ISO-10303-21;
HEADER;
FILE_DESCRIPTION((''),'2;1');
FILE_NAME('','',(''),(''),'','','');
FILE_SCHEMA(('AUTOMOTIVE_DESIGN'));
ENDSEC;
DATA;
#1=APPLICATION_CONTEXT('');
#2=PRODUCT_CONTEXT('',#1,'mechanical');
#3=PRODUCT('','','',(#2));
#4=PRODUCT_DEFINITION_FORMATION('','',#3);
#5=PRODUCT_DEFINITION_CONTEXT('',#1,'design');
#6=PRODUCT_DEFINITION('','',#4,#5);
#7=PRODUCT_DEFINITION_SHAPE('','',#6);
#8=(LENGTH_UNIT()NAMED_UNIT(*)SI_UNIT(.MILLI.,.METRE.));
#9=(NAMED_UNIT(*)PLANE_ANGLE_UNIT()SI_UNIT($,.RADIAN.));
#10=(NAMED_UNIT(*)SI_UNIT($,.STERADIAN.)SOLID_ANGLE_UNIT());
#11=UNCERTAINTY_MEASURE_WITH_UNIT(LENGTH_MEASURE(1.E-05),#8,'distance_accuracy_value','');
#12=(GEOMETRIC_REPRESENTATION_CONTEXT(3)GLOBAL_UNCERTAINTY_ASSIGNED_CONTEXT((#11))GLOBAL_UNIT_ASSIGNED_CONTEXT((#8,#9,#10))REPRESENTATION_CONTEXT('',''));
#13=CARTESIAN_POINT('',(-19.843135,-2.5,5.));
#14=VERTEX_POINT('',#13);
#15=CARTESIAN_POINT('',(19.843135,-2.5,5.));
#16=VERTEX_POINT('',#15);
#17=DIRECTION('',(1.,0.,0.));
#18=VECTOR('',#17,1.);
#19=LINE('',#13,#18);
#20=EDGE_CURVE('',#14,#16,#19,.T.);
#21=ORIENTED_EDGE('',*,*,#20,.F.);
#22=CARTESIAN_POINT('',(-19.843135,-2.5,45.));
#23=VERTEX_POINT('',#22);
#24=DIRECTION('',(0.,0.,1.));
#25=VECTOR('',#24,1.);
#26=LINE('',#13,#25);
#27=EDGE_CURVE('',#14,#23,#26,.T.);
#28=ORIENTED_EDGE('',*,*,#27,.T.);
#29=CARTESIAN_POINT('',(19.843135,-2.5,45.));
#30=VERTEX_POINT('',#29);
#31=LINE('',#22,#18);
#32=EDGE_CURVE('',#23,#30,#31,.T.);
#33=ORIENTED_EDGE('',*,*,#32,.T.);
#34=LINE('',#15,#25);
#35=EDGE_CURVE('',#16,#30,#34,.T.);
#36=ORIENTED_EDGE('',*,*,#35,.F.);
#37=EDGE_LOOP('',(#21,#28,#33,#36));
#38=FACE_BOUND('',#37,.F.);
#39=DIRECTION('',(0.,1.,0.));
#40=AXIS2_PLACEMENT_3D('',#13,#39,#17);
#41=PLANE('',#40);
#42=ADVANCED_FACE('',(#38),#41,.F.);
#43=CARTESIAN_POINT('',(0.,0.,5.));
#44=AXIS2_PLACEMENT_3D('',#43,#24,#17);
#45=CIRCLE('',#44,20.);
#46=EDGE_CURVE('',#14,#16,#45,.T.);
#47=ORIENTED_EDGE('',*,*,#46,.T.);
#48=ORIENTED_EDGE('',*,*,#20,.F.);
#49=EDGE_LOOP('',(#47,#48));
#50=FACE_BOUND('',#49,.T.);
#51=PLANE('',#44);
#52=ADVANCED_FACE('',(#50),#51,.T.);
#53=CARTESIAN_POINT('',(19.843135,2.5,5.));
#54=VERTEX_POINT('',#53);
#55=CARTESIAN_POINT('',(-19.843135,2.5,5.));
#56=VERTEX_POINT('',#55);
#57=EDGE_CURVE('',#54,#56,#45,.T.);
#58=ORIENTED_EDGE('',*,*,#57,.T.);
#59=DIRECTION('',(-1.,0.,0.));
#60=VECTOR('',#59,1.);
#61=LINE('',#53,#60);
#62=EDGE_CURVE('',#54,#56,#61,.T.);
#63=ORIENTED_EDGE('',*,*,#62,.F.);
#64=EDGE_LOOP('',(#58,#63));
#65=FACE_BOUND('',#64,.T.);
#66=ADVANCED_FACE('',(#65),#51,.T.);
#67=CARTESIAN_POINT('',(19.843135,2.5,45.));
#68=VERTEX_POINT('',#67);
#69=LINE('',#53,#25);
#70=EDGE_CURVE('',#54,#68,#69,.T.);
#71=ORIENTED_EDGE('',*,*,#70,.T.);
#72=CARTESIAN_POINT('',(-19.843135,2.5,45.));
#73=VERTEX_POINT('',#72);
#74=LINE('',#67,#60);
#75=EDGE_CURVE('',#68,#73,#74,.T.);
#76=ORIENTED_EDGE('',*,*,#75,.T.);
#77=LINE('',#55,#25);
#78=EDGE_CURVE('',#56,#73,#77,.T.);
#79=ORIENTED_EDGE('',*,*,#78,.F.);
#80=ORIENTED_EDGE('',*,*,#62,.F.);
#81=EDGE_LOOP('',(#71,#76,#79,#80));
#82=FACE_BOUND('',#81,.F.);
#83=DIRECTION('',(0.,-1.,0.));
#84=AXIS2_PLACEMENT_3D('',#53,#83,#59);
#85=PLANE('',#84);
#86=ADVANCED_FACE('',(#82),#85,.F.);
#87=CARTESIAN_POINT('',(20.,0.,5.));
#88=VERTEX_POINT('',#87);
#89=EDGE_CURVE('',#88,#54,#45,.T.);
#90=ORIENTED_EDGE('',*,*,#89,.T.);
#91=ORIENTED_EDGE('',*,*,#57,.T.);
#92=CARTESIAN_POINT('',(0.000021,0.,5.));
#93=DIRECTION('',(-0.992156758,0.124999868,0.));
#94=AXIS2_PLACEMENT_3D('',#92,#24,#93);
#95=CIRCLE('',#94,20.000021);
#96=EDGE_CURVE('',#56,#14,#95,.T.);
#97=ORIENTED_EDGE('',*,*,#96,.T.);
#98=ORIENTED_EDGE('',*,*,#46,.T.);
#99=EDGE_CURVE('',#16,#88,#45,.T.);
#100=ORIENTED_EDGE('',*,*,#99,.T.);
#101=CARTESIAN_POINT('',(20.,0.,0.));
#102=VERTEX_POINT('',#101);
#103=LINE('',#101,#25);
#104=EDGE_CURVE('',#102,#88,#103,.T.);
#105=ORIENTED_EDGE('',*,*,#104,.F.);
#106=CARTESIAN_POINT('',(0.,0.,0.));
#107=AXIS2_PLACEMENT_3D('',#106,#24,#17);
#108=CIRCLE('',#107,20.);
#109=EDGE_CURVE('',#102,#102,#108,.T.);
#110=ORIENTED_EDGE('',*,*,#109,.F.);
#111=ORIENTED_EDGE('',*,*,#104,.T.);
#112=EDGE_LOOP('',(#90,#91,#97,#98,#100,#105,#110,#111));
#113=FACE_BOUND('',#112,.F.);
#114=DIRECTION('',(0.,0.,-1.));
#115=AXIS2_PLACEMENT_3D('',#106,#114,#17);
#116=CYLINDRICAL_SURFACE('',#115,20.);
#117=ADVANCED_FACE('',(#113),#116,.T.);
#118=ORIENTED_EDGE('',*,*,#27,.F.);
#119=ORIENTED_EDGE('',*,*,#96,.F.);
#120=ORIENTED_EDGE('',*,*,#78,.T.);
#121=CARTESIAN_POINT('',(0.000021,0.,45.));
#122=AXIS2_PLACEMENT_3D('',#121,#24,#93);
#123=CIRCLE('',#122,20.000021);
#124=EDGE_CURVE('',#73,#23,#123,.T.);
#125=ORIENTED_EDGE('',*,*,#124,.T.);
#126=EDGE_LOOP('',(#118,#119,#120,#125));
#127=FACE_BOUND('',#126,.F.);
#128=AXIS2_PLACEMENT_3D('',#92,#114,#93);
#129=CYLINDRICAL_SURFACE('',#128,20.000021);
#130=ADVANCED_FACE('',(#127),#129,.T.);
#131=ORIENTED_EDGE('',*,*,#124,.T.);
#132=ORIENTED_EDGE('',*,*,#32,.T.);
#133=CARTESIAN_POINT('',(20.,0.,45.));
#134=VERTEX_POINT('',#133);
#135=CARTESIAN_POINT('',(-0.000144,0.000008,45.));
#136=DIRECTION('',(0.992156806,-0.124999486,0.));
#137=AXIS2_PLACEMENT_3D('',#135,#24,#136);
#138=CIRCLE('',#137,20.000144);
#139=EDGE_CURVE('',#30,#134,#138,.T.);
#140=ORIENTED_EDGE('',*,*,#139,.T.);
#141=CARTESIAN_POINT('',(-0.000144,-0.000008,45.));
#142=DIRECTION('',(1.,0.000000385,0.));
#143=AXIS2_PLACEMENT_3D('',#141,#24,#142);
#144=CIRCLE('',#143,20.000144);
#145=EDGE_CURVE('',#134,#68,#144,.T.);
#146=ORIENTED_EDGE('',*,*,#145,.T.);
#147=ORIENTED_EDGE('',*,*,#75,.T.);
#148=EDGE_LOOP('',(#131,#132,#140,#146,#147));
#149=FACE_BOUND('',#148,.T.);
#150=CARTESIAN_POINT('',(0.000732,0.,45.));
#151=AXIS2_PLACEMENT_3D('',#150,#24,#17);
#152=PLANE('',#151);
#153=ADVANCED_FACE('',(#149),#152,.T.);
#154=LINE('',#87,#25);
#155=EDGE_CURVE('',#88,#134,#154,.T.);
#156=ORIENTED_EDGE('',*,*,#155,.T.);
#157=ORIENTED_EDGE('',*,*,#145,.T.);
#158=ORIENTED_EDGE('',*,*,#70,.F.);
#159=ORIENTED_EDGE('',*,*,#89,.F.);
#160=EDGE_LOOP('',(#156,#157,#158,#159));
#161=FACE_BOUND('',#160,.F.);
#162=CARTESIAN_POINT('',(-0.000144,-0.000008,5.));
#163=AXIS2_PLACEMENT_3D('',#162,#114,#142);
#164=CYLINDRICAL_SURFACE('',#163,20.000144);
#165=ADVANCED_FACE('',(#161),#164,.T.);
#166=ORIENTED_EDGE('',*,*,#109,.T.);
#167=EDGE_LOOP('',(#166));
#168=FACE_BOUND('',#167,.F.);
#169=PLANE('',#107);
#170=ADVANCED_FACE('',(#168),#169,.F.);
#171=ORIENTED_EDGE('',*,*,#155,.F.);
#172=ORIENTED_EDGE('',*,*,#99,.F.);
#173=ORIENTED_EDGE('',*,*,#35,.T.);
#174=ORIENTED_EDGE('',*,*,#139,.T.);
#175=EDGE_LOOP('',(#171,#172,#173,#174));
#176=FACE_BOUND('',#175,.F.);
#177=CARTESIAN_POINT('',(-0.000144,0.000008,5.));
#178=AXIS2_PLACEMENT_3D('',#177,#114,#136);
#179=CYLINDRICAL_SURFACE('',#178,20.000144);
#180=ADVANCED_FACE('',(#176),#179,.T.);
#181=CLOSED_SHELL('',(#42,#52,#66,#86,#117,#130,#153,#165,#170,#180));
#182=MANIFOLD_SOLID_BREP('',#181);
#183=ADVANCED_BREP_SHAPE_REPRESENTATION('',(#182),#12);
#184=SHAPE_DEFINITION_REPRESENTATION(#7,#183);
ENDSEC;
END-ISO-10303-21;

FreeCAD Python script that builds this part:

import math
import FreeCAD as App
import Part
import Sketcher

doc = App.newDocument("Part")
params = doc.addObject("Spreadsheet::Sheet", "Params")
for row, (alias, value) in enumerate([
    ("sketch1_diameter", "40 mm"),
    ("pad1_length", "5 mm"),
    ("pad2_length", "40 mm"),
], start=1):
    params.set(f"A{row}", alias)
    params.set(f"B{row}", "=" + value)
    params.setAlias(f"B{row}", alias)

body = doc.addObject("PartDesign::Body", "Body")

# Sketch on XY plane
sketch1 = doc.addObject("Sketcher::SketchObject", "Sketch")
body.addObject(sketch1)
sketch1.AttachmentSupport = (doc.XY_Plane, [""])
sketch1.MapMode = "FlatFace"
sketch1.addGeometry(Part.Circle(App.Vector(0, 0, 0), App.Vector(0, 0, 1), 20), False)
sketch1.addConstraint([
    Sketcher.Constraint("Coincident", 0, 3, -1, 1),
    Sketcher.Constraint("Diameter", 0, 40.0),
])
sketch1.setExpression("Constraints[1]", "Params.sketch1_diameter")
pad1 = doc.addObject("PartDesign::Pad", "Pad")
body.addObject(pad1)
pad1.Profile = sketch1
pad1.setExpression("Length", "Params.pad1_length")

# Sketch on XY plane
sketch2 = doc.addObject("Sketcher::SketchObject", "Sketch001")
body.addObject(sketch2)
sketch2.AttachmentSupport = (doc.XY_Plane, [""])
sketch2.MapMode = "FlatFace"
sketch2.AttachmentOffset = App.Placement(App.Vector(0, 0, 5), App.Rotation())
sketch2.addGeometry([
    Part.LineSegment(App.Vector(19.8, 2.5, 0), App.Vector(-19.8, 2.5, 0)),  # 0
    Part.ArcOfCircle(Part.Circle(App.Vector(0, 0, 0), App.Vector(0, 0, 1), 20), math.radians(172.82), math.radians(187.18)),  # 1
    Part.LineSegment(App.Vector(-19.8, -2.5, 0), App.Vector(19.8, -2.5, 0)),  # 2
    Part.ArcOfCircle(Part.Circle(App.Vector(0, 0, 0), App.Vector(0, 0, 1), 20), math.radians(-7.18), math.radians(0)),  # 3
    Part.ArcOfCircle(Part.Circle(App.Vector(0, 0, 0), App.Vector(0, 0, 1), 20), math.radians(0), math.radians(7.18)),  # 4
], False)
sketch2.addConstraint([
    Sketcher.Constraint("Coincident", 0, 2, 1, 1),
    Sketcher.Constraint("Coincident", 1, 2, 2, 1),
    Sketcher.Constraint("Coincident", 2, 2, 3, 1),
    Sketcher.Constraint("Tangent", 3, 2, 4, 1),
    Sketcher.Constraint("Coincident", 4, 2, 0, 1),
    Sketcher.Constraint("Horizontal", 0),
    Sketcher.Constraint("Horizontal", 2),
    Sketcher.Constraint("Equal", 3, 4),
    Sketcher.Constraint("Symmetric", 0, 2, 2, 2, -1, 1),
    Sketcher.Constraint("PointOnObject", 1, 3, -1),
    Sketcher.Constraint("PointOnObject", 3, 2, -1),
    Sketcher.Constraint("Vertical", 2, 2, 4, 2),
    Sketcher.Constraint("DistanceX", -1, 1, 3, 2, 20.0),
    Sketcher.Constraint("DistanceY", 1, 2, 0, 2, 5.0),
    Sketcher.Constraint("Radius", 1, 20.000021),
    Sketcher.Constraint("Radius", 3, 20.000144),
])
pad2 = doc.addObject("PartDesign::Pad", "Pad001")
body.addObject(pad2)
pad2.Profile = sketch2
pad2.setExpression("Length", "Params.pad2_length")

doc.recompute()
